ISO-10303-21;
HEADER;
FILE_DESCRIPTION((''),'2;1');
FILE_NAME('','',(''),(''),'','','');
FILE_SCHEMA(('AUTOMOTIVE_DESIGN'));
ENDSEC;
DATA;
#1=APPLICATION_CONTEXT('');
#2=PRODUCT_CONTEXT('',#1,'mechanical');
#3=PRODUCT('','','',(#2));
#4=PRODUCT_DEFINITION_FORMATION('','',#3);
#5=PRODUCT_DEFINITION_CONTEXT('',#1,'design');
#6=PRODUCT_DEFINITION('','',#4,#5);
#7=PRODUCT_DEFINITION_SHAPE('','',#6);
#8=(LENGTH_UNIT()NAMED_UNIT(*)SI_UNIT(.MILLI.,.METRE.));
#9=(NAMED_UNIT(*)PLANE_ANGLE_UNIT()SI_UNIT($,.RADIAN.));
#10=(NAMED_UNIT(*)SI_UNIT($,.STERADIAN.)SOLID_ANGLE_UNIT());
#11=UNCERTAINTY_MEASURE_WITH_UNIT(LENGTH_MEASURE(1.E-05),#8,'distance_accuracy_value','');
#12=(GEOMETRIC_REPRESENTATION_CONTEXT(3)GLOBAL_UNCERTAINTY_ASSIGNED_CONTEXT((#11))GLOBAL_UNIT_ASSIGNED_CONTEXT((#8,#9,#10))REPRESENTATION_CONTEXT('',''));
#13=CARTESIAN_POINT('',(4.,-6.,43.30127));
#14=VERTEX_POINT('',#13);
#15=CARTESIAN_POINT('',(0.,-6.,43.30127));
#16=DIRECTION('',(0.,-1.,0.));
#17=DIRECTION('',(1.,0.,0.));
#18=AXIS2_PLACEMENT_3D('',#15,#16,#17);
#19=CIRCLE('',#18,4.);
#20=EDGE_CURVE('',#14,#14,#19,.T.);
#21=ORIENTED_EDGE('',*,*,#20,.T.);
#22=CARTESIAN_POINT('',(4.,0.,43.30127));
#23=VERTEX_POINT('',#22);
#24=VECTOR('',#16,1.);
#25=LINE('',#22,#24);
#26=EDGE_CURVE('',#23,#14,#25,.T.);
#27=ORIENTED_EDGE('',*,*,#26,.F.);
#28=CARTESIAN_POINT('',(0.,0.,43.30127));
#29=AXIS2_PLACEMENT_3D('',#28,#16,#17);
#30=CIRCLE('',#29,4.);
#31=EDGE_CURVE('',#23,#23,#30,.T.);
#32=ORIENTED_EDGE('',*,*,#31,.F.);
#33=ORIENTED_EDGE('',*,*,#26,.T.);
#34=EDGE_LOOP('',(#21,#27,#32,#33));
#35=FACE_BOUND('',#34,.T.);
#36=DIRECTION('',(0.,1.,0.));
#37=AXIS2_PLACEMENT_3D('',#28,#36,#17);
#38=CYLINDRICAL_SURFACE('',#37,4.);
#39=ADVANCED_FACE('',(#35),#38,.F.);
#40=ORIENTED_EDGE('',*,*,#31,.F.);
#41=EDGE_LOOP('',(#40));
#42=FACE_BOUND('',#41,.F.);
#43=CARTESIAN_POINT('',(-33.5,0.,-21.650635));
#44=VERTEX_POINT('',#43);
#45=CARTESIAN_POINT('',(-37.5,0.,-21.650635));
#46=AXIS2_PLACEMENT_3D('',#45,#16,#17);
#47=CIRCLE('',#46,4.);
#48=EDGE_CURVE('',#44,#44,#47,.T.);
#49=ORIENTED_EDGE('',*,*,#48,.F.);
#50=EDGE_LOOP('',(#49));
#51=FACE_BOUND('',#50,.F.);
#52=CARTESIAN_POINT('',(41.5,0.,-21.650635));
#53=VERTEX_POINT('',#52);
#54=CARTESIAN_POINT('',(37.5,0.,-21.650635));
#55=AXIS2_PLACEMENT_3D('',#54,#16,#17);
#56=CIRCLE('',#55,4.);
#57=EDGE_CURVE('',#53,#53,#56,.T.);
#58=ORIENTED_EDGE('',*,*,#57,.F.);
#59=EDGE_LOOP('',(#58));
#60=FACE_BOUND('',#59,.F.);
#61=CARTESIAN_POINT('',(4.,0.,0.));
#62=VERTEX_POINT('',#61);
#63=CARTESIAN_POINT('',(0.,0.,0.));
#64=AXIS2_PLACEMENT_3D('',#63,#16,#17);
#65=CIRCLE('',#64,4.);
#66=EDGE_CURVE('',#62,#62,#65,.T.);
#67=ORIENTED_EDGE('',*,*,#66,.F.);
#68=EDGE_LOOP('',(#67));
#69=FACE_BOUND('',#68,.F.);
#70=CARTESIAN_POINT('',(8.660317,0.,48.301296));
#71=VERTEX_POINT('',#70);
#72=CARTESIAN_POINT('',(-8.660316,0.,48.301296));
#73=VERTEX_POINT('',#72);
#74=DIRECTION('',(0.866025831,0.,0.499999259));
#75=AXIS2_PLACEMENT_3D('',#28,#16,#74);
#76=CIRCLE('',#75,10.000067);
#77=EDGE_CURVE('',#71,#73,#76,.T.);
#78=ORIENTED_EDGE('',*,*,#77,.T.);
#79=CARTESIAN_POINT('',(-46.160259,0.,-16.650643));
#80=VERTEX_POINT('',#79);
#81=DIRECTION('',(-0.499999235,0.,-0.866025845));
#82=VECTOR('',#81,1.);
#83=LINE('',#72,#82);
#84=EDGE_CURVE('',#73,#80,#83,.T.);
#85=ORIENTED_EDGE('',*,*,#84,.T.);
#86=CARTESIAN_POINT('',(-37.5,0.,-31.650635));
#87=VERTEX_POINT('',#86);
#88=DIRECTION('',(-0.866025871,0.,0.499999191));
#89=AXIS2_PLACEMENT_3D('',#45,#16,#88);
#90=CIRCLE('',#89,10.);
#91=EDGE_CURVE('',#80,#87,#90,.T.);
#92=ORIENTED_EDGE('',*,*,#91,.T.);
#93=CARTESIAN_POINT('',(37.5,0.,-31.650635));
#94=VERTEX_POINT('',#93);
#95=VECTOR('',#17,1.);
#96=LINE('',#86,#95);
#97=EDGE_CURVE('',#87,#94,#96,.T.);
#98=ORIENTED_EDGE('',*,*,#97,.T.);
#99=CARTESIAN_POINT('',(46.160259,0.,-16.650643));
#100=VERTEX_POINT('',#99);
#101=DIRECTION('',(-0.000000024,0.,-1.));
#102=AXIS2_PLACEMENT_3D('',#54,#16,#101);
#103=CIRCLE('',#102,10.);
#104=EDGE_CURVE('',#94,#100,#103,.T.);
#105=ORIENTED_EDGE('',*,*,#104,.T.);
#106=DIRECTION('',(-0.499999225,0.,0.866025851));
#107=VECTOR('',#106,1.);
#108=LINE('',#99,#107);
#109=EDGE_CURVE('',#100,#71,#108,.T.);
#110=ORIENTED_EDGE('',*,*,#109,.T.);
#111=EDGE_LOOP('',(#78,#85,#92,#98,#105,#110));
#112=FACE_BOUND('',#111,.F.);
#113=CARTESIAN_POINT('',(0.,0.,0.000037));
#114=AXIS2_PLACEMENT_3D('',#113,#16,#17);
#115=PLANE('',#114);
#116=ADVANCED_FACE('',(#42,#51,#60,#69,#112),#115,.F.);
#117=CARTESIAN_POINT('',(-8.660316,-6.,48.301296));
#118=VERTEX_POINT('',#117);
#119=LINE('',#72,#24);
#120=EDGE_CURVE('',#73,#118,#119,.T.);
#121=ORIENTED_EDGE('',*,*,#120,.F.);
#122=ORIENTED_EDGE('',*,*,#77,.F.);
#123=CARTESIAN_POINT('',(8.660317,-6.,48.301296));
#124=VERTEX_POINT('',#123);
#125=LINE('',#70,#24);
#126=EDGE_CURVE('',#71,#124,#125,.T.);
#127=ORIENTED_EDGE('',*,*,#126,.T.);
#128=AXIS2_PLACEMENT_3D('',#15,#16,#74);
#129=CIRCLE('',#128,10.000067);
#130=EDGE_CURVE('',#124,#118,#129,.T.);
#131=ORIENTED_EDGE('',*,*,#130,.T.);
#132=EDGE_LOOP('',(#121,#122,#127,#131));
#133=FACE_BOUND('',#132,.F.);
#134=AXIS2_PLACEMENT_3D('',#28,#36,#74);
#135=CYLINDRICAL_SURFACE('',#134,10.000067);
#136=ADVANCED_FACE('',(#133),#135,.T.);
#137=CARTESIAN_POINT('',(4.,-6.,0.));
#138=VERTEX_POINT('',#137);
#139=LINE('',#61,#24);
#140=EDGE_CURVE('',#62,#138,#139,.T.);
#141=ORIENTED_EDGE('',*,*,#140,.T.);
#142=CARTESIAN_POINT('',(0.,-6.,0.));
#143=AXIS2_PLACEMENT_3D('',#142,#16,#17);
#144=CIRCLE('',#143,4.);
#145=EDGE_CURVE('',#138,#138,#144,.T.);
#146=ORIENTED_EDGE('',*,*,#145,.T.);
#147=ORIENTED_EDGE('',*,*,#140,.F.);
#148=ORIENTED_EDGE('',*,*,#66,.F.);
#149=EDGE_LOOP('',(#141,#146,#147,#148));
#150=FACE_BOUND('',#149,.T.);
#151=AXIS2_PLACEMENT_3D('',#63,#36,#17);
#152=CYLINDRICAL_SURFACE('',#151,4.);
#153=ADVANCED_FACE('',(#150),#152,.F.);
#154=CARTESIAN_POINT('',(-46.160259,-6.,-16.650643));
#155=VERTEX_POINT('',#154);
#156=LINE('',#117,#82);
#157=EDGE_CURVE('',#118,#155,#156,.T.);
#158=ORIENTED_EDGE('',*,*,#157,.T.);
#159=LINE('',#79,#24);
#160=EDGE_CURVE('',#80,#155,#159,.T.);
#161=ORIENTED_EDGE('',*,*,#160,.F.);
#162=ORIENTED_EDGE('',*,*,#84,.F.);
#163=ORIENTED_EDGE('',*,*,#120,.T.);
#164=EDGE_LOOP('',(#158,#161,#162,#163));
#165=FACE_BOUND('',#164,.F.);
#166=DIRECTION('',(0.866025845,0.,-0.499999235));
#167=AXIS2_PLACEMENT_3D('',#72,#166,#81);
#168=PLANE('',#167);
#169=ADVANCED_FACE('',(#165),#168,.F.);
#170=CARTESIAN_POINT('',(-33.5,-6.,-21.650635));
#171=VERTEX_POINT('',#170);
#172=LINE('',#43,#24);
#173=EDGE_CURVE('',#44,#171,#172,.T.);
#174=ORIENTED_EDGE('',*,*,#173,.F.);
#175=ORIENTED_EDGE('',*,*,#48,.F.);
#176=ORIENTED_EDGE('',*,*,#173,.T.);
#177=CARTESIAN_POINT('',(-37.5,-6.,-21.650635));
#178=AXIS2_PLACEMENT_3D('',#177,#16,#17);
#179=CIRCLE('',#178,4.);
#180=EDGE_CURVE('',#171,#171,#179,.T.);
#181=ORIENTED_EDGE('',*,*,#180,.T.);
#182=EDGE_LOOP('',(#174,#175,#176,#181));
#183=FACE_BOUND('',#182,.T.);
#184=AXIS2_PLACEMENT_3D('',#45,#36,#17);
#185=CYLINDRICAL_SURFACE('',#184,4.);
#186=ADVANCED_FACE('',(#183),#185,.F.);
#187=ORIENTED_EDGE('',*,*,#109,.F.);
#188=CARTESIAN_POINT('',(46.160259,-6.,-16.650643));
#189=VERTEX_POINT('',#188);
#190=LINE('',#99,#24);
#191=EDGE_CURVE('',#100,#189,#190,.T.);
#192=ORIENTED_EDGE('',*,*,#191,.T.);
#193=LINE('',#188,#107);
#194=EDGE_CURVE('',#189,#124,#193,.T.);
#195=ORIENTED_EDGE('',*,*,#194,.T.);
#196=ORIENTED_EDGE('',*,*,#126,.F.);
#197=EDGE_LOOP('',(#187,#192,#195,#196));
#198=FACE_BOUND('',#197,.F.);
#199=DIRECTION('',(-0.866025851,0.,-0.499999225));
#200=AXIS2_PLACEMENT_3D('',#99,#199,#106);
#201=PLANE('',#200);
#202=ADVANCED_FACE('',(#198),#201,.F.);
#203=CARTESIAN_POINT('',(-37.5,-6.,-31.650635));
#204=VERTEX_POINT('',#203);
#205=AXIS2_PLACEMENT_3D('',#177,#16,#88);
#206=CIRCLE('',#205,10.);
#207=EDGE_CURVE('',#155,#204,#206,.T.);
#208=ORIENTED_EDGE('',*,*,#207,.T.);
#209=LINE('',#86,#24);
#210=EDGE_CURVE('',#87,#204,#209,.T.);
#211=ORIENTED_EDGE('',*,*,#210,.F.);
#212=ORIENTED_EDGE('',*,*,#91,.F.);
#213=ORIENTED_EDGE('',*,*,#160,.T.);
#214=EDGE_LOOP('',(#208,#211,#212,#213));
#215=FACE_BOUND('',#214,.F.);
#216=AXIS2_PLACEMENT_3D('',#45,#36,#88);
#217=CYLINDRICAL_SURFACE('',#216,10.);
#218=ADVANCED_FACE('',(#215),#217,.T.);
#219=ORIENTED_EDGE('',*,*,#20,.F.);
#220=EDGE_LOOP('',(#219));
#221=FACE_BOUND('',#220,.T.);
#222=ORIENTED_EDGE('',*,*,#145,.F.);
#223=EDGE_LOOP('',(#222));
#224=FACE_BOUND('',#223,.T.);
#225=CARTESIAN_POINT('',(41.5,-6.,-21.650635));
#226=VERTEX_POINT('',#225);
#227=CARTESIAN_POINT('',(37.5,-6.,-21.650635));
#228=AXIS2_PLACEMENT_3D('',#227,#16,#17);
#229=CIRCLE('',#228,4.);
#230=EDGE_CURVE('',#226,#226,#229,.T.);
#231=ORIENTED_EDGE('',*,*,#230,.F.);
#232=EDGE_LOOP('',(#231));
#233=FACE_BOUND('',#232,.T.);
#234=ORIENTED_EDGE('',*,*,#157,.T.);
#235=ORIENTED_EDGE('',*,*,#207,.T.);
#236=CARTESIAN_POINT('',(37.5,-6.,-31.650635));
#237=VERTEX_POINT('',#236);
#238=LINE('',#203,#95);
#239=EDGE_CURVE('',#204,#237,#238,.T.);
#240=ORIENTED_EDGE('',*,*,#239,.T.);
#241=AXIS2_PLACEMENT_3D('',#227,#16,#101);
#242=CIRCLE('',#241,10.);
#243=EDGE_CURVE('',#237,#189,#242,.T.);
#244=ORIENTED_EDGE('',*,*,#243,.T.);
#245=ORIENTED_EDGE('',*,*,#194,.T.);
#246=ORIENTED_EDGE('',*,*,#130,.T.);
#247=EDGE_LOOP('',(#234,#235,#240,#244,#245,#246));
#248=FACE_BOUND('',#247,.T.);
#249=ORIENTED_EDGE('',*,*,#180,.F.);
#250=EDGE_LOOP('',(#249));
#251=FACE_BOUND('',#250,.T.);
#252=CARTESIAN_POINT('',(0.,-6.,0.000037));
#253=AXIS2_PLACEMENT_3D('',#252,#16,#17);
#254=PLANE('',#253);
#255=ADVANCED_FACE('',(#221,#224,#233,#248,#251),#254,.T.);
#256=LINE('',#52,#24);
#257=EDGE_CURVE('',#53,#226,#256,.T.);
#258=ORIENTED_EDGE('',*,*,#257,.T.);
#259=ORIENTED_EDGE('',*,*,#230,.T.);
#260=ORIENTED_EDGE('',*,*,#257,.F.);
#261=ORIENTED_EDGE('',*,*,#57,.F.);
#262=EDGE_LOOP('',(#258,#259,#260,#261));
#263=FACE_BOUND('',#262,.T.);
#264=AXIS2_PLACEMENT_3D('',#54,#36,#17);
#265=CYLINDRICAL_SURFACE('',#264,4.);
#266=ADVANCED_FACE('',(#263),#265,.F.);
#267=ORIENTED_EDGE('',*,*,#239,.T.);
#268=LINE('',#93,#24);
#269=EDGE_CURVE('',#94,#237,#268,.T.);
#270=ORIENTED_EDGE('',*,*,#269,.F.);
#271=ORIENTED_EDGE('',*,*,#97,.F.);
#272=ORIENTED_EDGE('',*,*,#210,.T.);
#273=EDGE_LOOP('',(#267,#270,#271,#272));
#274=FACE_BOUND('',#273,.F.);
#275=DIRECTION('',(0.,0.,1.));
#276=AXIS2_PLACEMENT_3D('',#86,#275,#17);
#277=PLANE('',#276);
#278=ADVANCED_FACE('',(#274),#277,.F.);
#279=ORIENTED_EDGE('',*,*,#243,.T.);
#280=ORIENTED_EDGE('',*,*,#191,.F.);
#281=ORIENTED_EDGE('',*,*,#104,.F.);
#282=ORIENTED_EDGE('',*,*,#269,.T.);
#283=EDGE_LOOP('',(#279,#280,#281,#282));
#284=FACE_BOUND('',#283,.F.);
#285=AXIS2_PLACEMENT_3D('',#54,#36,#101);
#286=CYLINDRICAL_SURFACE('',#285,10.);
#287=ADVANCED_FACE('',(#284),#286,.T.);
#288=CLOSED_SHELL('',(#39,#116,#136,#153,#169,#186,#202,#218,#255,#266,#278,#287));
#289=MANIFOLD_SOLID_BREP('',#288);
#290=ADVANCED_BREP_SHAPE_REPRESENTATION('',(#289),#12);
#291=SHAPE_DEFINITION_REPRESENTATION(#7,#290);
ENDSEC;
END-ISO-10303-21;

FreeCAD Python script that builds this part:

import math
import FreeCAD as App
import Part
import Sketcher

V = App.Vector

doc = App.newDocument("Part")
body = doc.addObject("PartDesign::Body", "Body")

# Sketch on XZ plane
sketch1 = doc.addObject("Sketcher::SketchObject", "Sketch")
body.addObject(sketch1)
sketch1.AttachmentSupport = (doc.XZ_Plane, [""])
sketch1.MapMode = "FlatFace"
sketch1.addGeometry(Part.LineSegment(V(46.2, -16.7, 0), V(8.7, 48.3, 0)), False)
sketch1.addGeometry(Part.ArcOfCircle(Part.Circle(V(0, 43.3, 0), V(0, 0, 1), 10), math.radians(30), math.radians(150)), False)
sketch1.addGeometry(Part.LineSegment(V(-8.7, 48.3, 0), V(-46.2, -16.7, 0)), False)
sketch1.addGeometry(Part.ArcOfCircle(Part.Circle(V(-37.5, -21.7, 0), V(0, 0, 1), 10), math.radians(150), math.radians(270)), False)
sketch1.addGeometry(Part.LineSegment(V(-37.5, -31.7, 0), V(37.5, -31.7, 0)), False)
sketch1.addGeometry(Part.ArcOfCircle(Part.Circle(V(37.5, -21.7, 0), V(0, 0, 1), 10), math.radians(-90), math.radians(30)), False)
sketch1.addGeometry(Part.Circle(V(-37.5, -21.7, 0), V(0, 0, 1), 4), False)
sketch1.addGeometry(Part.Circle(V(37.5, -21.7, 0), V(0, 0, 1), 4), False)
sketch1.addGeometry(Part.Circle(V(0, 0, 0), V(0, 0, 1), 4), False)
sketch1.addGeometry(Part.Circle(V(0, 43.3, 0), V(0, 0, 1), 4), False)
sketch1.addConstraint(Sketcher.Constraint("Tangent", 0, 2, 1, 1))
sketch1.addConstraint(Sketcher.Constraint("Tangent", 1, 2, 2, 1))
sketch1.addConstraint(Sketcher.Constraint("Tangent", 2, 2, 3, 1))
sketch1.addConstraint(Sketcher.Constraint("Tangent", 3, 2, 4, 1))
sketch1.addConstraint(Sketcher.Constraint("Tangent", 4, 2, 5, 1))
sketch1.addConstraint(Sketcher.Constraint("Tangent", 5, 2, 0, 1))
sketch1.addConstraint(Sketcher.Constraint("Horizontal", 4))
sketch1.addConstraint(Sketcher.Constraint("Coincident", 8, 3, -1, 1))
sketch1.addConstraint(Sketcher.Constraint("Coincident", 6, 3, 3, 3))
sketch1.addConstraint(Sketcher.Constraint("Coincident", 7, 3, 5, 3))
sketch1.addConstraint(Sketcher.Constraint("Coincident", 9, 3, 1, 3))
sketch1.addConstraint(Sketcher.Constraint("Equal", 3, 5))
sketch1.addConstraint(Sketcher.Constraint("Equal", 6, 7))
sketch1.addConstraint(Sketcher.Constraint("Equal", 7, 8))
sketch1.addConstraint(Sketcher.Constraint("Equal", 8, 9))
sketch1.addConstraint(Sketcher.Constraint("Symmetric", 0, 2, 1, 2, -2))
sketch1.addConstraint(Sketcher.Constraint("Diameter", 6, 8.0))
sketch1.addConstraint(Sketcher.Constraint("Radius", 3, 10.0))
sketch1.addConstraint(Sketcher.Constraint("DistanceX", 4, 1, 4, 2, 75.0))
sketch1.addConstraint(Sketcher.Constraint("Distance", 0, 75.0))
sketch1.addConstraint(Sketcher.Constraint("Radius", 1, 10.000067))
sketch1.addConstraint(Sketcher.Constraint("DistanceY", -1, 1, 1, 3, 43.30127))
pad1 = doc.addObject("PartDesign::Pad", "Pad")
body.addObject(pad1)
pad1.Profile = sketch1
pad1.Length = 6

doc.recompute()
